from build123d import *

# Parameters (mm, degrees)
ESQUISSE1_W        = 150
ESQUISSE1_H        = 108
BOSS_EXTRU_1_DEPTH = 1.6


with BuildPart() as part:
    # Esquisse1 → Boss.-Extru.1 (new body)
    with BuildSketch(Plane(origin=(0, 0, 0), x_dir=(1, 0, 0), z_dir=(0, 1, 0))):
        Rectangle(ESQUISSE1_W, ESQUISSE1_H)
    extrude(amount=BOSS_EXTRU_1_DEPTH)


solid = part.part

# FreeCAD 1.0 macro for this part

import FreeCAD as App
import Part
import Sketcher
from FreeCAD import Vector
Q = App.Units.Quantity

doc = App.newDocument("Part")
body = doc.addObject("PartDesign::Body", "Body")

# Sketch on XZ plane
sketch1 = body.newObject("Sketcher::SketchObject", "Sketch")
sketch1.AttachmentSupport = (doc.getObject("XZ_Plane"), [""])
sketch1.MapMode = "FlatFace"
sketch1.addGeometry([
    Part.LineSegment(Vector(-75, -54, 0), Vector(-75, 54, 0)),
    Part.LineSegment(Vector(-75, 54, 0), Vector(75, 54, 0)),
    Part.LineSegment(Vector(75, 54, 0), Vector(75, -54, 0)),
    Part.LineSegment(Vector(75, -54, 0), Vector(-75, -54, 0)),
], False)
sketch1.addConstraint([
    Sketcher.Constraint("Coincident", 0, 2, 1, 1),
    Sketcher.Constraint("Coincident", 1, 2, 2, 1),
    Sketcher.Constraint("Coincident", 2, 2, 3, 1),
    Sketcher.Constraint("Coincident", 3, 2, 0, 1),
    Sketcher.Constraint("Vertical", 0),
    Sketcher.Constraint("Horizontal", 1),
    Sketcher.Constraint("Vertical", 2),
    Sketcher.Constraint("Horizontal", 3),
    Sketcher.Constraint("Symmetric", 0, 2, 2, 2, -1, 1),
    Sketcher.Constraint("DistanceX", 1, 1, 1, 2, Q("150 mm")),
    Sketcher.Constraint("DistanceY", 0, 1, 0, 2, Q("108 mm")),
])
pad1 = body.newObject("PartDesign::Pad", "Pad")
pad1.Profile = sketch1
pad1.Length = 1.6
pad1.Reversed = True

doc.recompute()
